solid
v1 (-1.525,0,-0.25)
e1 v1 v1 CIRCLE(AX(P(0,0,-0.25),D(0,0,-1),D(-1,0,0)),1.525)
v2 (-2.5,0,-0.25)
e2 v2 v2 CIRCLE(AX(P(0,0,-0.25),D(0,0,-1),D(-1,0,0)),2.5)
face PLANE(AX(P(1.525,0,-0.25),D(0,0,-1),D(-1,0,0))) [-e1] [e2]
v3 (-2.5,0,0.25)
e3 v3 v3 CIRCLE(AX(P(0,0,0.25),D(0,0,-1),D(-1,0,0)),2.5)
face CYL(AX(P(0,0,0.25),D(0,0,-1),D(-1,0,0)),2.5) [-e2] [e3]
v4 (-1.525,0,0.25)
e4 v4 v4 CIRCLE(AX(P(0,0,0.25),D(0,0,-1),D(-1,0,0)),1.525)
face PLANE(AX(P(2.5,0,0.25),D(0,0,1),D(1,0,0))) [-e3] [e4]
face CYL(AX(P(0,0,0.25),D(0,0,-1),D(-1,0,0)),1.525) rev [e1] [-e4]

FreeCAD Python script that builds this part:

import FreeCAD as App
import Part
import Sketcher
from FreeCAD import Vector

doc = App.newDocument("Part")
body = doc.addObject("PartDesign::Body", "Body")

# Sketch on XZ plane
sketch1 = doc.addObject("Sketcher::SketchObject", "Sketch")
body.addObject(sketch1)
sketch1.AttachmentSupport = (doc.XZ_Plane, [""])
sketch1.MapMode = "FlatFace"
sketch1.addGeometry([
    Part.LineSegment(Vector(1.5, 0.2, 0), Vector(1.5, -0.2, 0)),
    Part.LineSegment(Vector(1.5, -0.2, 0), Vector(2.5, -0.2, 0)),
    Part.LineSegment(Vector(2.5, -0.2, 0), Vector(2.5, 0.2, 0)),
    Part.LineSegment(Vector(2.5, 0.2, 0), Vector(1.5, 0.2, 0)),
], False)
sketch1.addConstraint([
    Sketcher.Constraint("Coincident", 0, 2, 1, 1),
    Sketcher.Constraint("Coincident", 1, 2, 2, 1),
    Sketcher.Constraint("Coincident", 2, 2, 3, 1),
    Sketcher.Constraint("Coincident", 3, 2, 0, 1),
    Sketcher.Constraint("Vertical", 0),
    Sketcher.Constraint("Horizontal", 1),
    Sketcher.Constraint("Vertical", 2),
    Sketcher.Constraint("Horizontal", 3),
    Sketcher.Constraint("DistanceY", 0, 2, 0, 1, 0.5),
    Sketcher.Constraint("DistanceX", -1, 1, 1, 2, 2.5),
    Sketcher.Constraint("DistanceX", 1, 1, 1, 2, 0.975),
    Sketcher.Constraint("DistanceY", 0, 2, -1, 1, 0.25),
])
revolution = doc.addObject("PartDesign::Revolution", "Revolution")
body.addObject(revolution)
revolution.Profile = sketch1
revolution.ReferenceAxis = (sketch1, ["V_Axis"])
revolution.Angle = 360

doc.recompute()
